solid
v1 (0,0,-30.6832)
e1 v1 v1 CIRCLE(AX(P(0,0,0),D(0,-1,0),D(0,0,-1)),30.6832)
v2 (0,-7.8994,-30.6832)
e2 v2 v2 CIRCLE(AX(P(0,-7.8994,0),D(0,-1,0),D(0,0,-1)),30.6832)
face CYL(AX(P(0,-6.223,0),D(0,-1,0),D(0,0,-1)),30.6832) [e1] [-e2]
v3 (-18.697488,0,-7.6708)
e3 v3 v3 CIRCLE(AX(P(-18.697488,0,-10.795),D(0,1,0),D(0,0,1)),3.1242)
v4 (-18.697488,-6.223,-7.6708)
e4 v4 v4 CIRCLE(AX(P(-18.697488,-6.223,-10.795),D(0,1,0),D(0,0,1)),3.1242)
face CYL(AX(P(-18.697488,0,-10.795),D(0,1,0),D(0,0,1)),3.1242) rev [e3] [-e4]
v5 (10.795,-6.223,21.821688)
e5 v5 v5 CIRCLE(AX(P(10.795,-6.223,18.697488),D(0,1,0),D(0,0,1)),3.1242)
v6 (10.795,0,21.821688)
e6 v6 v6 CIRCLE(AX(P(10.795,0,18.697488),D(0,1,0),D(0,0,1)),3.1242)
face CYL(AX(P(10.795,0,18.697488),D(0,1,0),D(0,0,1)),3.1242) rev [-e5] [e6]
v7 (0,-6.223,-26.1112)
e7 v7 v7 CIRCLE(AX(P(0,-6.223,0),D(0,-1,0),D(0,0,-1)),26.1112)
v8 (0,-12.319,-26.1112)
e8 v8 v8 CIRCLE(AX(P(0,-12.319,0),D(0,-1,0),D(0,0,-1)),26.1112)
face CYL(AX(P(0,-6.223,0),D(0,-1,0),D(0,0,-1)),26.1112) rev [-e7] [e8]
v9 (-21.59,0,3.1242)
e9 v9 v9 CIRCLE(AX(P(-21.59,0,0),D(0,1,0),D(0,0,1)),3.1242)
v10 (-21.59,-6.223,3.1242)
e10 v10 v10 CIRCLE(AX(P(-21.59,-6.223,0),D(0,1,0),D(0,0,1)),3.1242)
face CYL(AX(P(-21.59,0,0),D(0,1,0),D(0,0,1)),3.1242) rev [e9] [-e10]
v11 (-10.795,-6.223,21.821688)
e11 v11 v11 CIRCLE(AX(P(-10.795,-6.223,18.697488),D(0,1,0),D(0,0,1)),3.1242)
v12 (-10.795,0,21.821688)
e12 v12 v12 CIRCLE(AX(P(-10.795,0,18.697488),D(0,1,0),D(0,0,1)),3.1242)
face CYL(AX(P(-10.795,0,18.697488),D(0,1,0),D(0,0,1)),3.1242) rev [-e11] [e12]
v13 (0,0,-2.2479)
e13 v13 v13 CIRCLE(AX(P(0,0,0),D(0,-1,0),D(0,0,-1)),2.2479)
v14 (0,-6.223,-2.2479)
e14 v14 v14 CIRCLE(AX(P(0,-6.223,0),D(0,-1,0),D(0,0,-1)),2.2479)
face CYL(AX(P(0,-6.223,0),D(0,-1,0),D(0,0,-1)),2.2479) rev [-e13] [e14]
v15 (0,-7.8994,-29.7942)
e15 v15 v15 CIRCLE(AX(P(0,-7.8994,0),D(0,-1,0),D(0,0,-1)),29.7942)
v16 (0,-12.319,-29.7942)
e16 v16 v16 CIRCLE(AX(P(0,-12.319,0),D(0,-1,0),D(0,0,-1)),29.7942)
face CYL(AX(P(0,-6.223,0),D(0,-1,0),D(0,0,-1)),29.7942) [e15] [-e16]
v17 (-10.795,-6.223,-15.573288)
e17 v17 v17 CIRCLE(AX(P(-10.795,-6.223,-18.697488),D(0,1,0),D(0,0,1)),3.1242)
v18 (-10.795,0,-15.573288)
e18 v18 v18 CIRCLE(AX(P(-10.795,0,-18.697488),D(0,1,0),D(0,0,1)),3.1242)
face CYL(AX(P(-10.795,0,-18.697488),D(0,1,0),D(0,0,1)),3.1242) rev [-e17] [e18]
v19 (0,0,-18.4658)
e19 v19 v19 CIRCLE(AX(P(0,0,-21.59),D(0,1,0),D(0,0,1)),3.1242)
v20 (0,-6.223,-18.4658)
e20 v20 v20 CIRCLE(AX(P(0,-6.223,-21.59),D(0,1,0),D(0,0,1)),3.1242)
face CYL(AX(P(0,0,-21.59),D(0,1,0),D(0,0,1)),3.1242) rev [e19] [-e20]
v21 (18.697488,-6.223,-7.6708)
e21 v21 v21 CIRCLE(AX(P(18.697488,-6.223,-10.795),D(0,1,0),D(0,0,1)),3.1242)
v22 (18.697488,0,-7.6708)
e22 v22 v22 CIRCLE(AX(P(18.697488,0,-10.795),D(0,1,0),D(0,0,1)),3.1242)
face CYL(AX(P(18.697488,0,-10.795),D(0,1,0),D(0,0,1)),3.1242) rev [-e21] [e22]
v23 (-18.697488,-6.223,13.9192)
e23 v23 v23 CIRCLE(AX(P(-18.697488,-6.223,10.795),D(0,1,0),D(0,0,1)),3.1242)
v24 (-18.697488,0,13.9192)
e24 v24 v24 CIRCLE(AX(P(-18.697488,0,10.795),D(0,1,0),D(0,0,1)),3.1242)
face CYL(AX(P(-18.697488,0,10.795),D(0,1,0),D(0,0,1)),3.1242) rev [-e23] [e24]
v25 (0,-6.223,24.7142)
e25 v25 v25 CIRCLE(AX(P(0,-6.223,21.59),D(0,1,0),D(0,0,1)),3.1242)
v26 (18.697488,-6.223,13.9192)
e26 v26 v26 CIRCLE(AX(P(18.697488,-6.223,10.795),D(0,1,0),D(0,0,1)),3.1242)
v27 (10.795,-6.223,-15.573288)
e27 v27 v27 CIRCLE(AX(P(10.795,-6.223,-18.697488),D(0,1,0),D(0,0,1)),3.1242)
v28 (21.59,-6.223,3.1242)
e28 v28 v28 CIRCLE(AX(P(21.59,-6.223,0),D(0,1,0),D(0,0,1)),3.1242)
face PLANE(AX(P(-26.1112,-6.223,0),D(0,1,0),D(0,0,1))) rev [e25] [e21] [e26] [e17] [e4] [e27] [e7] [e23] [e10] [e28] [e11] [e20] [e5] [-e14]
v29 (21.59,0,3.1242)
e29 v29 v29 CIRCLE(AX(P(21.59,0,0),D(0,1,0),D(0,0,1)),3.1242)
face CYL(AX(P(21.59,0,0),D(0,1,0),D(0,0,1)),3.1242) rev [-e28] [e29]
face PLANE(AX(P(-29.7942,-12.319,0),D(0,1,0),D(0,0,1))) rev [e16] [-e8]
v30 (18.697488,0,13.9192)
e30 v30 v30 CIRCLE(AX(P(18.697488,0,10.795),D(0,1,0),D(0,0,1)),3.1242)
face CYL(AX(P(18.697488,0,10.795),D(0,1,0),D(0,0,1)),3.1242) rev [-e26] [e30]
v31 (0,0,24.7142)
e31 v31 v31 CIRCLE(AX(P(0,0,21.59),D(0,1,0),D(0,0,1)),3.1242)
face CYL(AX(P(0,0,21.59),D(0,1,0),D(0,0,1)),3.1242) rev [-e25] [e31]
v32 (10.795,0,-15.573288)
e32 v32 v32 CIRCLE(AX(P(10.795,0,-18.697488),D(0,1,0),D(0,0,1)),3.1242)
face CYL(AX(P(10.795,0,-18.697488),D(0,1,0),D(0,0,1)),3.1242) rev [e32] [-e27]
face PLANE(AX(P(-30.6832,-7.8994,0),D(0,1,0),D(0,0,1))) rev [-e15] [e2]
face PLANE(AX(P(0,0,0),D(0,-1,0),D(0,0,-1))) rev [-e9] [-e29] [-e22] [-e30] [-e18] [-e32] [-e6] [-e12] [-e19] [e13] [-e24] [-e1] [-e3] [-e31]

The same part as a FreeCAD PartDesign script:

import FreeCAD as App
import Part
import Sketcher
from FreeCAD import Vector
Q = App.Units.Quantity

doc = App.newDocument("Part")
body = doc.addObject("PartDesign::Body", "Body")

sketch1 = doc.addObject("Sketcher::SketchObject", "Sketch")
body.addObject(sketch1)
sketch1.AttachmentSupport = (doc.XY_Plane, [""])
sketch1.MapMode = "FlatFace"
sketch1.addGeometry(Part.LineSegment(Vector(0, 0, 0), Vector(-30.6832, 0, 0)), False)
sketch1.addGeometry(Part.LineSegment(Vector(-30.6832, 0, 0), Vector(-30.6832, -7.8994, 0)), False)
sketch1.addGeometry(Part.LineSegment(Vector(-30.6832, -7.8994, 0), Vector(-29.7942, -7.8994, 0)), False)
sketch1.addGeometry(Part.LineSegment(Vector(-29.7942, -7.8994, 0), Vector(-29.7942, -12.319, 0)), False)
sketch1.addGeometry(Part.LineSegment(Vector(-29.7942, -12.319, 0), Vector(-26.1112, -12.319, 0)), False)
sketch1.addGeometry(Part.LineSegment(Vector(-26.1112, -12.319, 0), Vector(-26.1112, -6.223, 0)), False)
sketch1.addGeometry(Part.LineSegment(Vector(-26.1112, -6.223, 0), Vector(0, -6.223, 0)), False)
sketch1.addGeometry(Part.LineSegment(Vector(0, -6.223, 0), Vector(0, 0, 0)), False)
sketch1.addConstraint(Sketcher.Constraint("Coincident", 0, 2, 1, 1))
sketch1.addConstraint(Sketcher.Constraint("Coincident", 1, 2, 2, 1))
sketch1.addConstraint(Sketcher.Constraint("Coincident", 2, 2, 3, 1))
sketch1.addConstraint(Sketcher.Constraint("Coincident", 3, 2, 4, 1))
sketch1.addConstraint(Sketcher.Constraint("Coincident", 4, 2, 5, 1))
sketch1.addConstraint(Sketcher.Constraint("Coincident", 5, 2, 6, 1))
sketch1.addConstraint(Sketcher.Constraint("Coincident", 6, 2, 7, 1))
sketch1.addConstraint(Sketcher.Constraint("Coincident", 7, 2, 0, 1))
sketch1.addConstraint(Sketcher.Constraint("Horizontal", 0))
sketch1.addConstraint(Sketcher.Constraint("Vertical", 1))
sketch1.addConstraint(Sketcher.Constraint("Horizontal", 2))
sketch1.addConstraint(Sketcher.Constraint("Vertical", 3))
sketch1.addConstraint(Sketcher.Constraint("Horizontal", 4))
sketch1.addConstraint(Sketcher.Constraint("Vertical", 5))
sketch1.addConstraint(Sketcher.Constraint("Horizontal", 6))
sketch1.addConstraint(Sketcher.Constraint("Vertical", 7))
sketch1.addConstraint(Sketcher.Constraint("Coincident", 7, 2, -1, 1))
sketch1.addConstraint(Sketcher.Constraint("DistanceY", 5, 1, 5, 2, Q("0.24 in")))
sketch1.addConstraint(Sketcher.Constraint("DistanceX", 0, 2, 0, 1, Q("1.208 in")))
sketch1.addConstraint(Sketcher.Constraint("DistanceX", 2, 1, 2, 2, Q("0.035 in")))
sketch1.addConstraint(Sketcher.Constraint("DistanceX", 4, 1, 4, 2, Q("0.145 in")))
sketch1.addConstraint(Sketcher.Constraint("DistanceY", 1, 2, 1, 1, Q("0.311 in")))
sketch1.addConstraint(Sketcher.Constraint("DistanceY", 3, 2, 3, 1, Q("0.174 in")))
revolution = doc.addObject("PartDesign::Revolution", "Revolution")
body.addObject(revolution)
revolution.Profile = sketch1
revolution.ReferenceAxis = (sketch1, ["V_Axis"])
revolution.Angle = 360

sketch2 = doc.addObject("Sketcher::SketchObject", "Sketch001")
body.addObject(sketch2)
sketch2.AttachmentSupport = (doc.YZ_Plane, [""])
sketch2.MapMode = "FlatFace"
sketch2.addGeometry(Part.LineSegment(Vector(-14.577209, -21.59, 0), Vector(0, -21.59, 0)), False)
sketch2.addGeometry(Part.LineSegment(Vector(0, -21.59, 0), Vector(0, -18.4658, 0)), False)
sketch2.addGeometry(Part.LineSegment(Vector(0, -18.4658, 0), Vector(-12.7, -18.4658, 0)), False)
sketch2.addGeometry(Part.LineSegment(Vector(-12.7, -18.4658, 0), Vector(-14.577209, -21.59, 0)), False)
sketch2.addGeometry(Part.LineSegment(Vector(0, -21.59, 0), Vector(-14.577209, -21.59, 0)), True)
sketch2.addConstraint(Sketcher.Constraint("Coincident", 0, 2, 1, 1))
sketch2.addConstraint(Sketcher.Constraint("Coincident", 1, 2, 2, 1))
sketch2.addConstraint(Sketcher.Constraint("Coincident", 2, 2, 3, 1))
sketch2.addConstraint(Sketcher.Constraint("Coincident", 3, 2, 0, 1))
sketch2.addConstraint(Sketcher.Constraint("Horizontal", 0))
sketch2.addConstraint(Sketcher.Constraint("Vertical", 1))
sketch2.addConstraint(Sketcher.Constraint("Horizontal", 2))
sketch2.addConstraint(Sketcher.Constraint("Horizontal", 4))
sketch2.addConstraint(Sketcher.Constraint("Coincident", 4, 1, 0, 2))
sketch2.addConstraint(Sketcher.Constraint("PointOnObject", 0, 2, -2))
sketch2.addConstraint(Sketcher.Constraint("Equal", 0, 4))
sketch2.addConstraint(Sketcher.Constraint("DistanceX", 2, 2, 2, 1, Q("0.5 in")))
sketch2.addConstraint(Sketcher.Constraint("Angle", 3, Q("-121 deg")))
sketch2.addConstraint(Sketcher.Constraint("DistanceY", 1, 1, 1, 2, Q("0.123 in")))
sketch2.addConstraint(Sketcher.Constraint("DistanceY", 0, 2, -1, 1, Q("0.85 in")))
groove = doc.addObject("PartDesign::Groove", "Groove")
body.addObject(groove)
groove.Profile = sketch2
groove.ReferenceAxis = (sketch2, ["Axis0"])
groove.Angle = 360
doc.recompute()

polarpattern = doc.addObject("PartDesign::PolarPattern", "PolarPattern")
body.addObject(polarpattern)
polarpattern.Originals = [groove]
polarpattern.Axis = (doc.Y_Axis, [""])
polarpattern.Angle = 360
polarpattern.Occurrences = 12
body.Tip = polarpattern

sketch3 = doc.addObject("Sketcher::SketchObject", "Sketch002")
body.addObject(sketch3)
sketch3.AttachmentSupport = (doc.XZ_Plane, [""])
sketch3.MapMode = "FlatFace"
sketch3.AttachmentOffset = App.Placement(Vector(0, 0, 0.245 * 25.4), App.Rotation())
sketch3.addGeometry(Part.Circle(Vector(0, 0, 0), Vector(0, 0, 1), 2.2479), False)
sketch3.addConstraint(Sketcher.Constraint("Coincident", 0, 3, -1, 1))
sketch3.addConstraint(Sketcher.Constraint("Diameter", 0, Q("0.177 in")))
doc.recompute()
hole = doc.addObject("PartDesign::Hole", "Hole")
body.addObject(hole)
hole.Profile = sketch3
hole.ThreadType = "None"
hole.Diameter = Q("0.177 in")
hole.DepthType = "Dimension"
hole.Depth = Q("0.38 in")
hole.DrillPoint = "Angled"
hole.DrillPointAngle = 118

doc.recompute()
